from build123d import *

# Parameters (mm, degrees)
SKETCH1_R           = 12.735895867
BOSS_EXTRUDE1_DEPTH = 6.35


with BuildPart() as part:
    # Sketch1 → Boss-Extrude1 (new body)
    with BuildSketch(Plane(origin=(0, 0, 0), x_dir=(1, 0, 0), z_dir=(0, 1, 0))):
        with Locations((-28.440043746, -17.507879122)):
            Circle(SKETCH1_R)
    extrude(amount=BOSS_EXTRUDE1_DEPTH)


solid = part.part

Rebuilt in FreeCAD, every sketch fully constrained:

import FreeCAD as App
import Part
import Sketcher
Q = App.Units.Quantity

doc = App.newDocument("Part")
params = doc.addObject("Spreadsheet::Sheet", "Params")
for row, (alias, value) in enumerate([
    ("pad1_length", "0.25 in"),
], start=1):
    params.set(f"A{row}", alias)
    params.set(f"B{row}", "=" + value)
    params.setAlias(f"B{row}", alias)

body = doc.addObject("PartDesign::Body", "Body")

# Sketch on XZ plane
sketch1 = body.newObject("Sketcher::SketchObject", "Sketch")
sketch1.AttachmentSupport = (doc.getObject("XZ_Plane"), [""])
sketch1.MapMode = "FlatFace"
sketch1.addGeometry(Part.Circle(App.Vector(-28, 18, 0), App.Vector(0, 0, 1), 13), False)
sketch1.addConstraint([
    Sketcher.Constraint("Diameter", 0, Q("25.471792 mm")),
    Sketcher.Constraint("DistanceY", -1, 1, 0, 3, Q("17.507879 mm")),
    Sketcher.Constraint("DistanceX", 0, 3, -1, 1, Q("28.440044 mm")),
])
pad1 = body.newObject("PartDesign::Pad", "Pad")
pad1.Profile = sketch1
pad1.setExpression("Length", "Params.pad1_length")
pad1.Reversed = True

doc.recompute()
